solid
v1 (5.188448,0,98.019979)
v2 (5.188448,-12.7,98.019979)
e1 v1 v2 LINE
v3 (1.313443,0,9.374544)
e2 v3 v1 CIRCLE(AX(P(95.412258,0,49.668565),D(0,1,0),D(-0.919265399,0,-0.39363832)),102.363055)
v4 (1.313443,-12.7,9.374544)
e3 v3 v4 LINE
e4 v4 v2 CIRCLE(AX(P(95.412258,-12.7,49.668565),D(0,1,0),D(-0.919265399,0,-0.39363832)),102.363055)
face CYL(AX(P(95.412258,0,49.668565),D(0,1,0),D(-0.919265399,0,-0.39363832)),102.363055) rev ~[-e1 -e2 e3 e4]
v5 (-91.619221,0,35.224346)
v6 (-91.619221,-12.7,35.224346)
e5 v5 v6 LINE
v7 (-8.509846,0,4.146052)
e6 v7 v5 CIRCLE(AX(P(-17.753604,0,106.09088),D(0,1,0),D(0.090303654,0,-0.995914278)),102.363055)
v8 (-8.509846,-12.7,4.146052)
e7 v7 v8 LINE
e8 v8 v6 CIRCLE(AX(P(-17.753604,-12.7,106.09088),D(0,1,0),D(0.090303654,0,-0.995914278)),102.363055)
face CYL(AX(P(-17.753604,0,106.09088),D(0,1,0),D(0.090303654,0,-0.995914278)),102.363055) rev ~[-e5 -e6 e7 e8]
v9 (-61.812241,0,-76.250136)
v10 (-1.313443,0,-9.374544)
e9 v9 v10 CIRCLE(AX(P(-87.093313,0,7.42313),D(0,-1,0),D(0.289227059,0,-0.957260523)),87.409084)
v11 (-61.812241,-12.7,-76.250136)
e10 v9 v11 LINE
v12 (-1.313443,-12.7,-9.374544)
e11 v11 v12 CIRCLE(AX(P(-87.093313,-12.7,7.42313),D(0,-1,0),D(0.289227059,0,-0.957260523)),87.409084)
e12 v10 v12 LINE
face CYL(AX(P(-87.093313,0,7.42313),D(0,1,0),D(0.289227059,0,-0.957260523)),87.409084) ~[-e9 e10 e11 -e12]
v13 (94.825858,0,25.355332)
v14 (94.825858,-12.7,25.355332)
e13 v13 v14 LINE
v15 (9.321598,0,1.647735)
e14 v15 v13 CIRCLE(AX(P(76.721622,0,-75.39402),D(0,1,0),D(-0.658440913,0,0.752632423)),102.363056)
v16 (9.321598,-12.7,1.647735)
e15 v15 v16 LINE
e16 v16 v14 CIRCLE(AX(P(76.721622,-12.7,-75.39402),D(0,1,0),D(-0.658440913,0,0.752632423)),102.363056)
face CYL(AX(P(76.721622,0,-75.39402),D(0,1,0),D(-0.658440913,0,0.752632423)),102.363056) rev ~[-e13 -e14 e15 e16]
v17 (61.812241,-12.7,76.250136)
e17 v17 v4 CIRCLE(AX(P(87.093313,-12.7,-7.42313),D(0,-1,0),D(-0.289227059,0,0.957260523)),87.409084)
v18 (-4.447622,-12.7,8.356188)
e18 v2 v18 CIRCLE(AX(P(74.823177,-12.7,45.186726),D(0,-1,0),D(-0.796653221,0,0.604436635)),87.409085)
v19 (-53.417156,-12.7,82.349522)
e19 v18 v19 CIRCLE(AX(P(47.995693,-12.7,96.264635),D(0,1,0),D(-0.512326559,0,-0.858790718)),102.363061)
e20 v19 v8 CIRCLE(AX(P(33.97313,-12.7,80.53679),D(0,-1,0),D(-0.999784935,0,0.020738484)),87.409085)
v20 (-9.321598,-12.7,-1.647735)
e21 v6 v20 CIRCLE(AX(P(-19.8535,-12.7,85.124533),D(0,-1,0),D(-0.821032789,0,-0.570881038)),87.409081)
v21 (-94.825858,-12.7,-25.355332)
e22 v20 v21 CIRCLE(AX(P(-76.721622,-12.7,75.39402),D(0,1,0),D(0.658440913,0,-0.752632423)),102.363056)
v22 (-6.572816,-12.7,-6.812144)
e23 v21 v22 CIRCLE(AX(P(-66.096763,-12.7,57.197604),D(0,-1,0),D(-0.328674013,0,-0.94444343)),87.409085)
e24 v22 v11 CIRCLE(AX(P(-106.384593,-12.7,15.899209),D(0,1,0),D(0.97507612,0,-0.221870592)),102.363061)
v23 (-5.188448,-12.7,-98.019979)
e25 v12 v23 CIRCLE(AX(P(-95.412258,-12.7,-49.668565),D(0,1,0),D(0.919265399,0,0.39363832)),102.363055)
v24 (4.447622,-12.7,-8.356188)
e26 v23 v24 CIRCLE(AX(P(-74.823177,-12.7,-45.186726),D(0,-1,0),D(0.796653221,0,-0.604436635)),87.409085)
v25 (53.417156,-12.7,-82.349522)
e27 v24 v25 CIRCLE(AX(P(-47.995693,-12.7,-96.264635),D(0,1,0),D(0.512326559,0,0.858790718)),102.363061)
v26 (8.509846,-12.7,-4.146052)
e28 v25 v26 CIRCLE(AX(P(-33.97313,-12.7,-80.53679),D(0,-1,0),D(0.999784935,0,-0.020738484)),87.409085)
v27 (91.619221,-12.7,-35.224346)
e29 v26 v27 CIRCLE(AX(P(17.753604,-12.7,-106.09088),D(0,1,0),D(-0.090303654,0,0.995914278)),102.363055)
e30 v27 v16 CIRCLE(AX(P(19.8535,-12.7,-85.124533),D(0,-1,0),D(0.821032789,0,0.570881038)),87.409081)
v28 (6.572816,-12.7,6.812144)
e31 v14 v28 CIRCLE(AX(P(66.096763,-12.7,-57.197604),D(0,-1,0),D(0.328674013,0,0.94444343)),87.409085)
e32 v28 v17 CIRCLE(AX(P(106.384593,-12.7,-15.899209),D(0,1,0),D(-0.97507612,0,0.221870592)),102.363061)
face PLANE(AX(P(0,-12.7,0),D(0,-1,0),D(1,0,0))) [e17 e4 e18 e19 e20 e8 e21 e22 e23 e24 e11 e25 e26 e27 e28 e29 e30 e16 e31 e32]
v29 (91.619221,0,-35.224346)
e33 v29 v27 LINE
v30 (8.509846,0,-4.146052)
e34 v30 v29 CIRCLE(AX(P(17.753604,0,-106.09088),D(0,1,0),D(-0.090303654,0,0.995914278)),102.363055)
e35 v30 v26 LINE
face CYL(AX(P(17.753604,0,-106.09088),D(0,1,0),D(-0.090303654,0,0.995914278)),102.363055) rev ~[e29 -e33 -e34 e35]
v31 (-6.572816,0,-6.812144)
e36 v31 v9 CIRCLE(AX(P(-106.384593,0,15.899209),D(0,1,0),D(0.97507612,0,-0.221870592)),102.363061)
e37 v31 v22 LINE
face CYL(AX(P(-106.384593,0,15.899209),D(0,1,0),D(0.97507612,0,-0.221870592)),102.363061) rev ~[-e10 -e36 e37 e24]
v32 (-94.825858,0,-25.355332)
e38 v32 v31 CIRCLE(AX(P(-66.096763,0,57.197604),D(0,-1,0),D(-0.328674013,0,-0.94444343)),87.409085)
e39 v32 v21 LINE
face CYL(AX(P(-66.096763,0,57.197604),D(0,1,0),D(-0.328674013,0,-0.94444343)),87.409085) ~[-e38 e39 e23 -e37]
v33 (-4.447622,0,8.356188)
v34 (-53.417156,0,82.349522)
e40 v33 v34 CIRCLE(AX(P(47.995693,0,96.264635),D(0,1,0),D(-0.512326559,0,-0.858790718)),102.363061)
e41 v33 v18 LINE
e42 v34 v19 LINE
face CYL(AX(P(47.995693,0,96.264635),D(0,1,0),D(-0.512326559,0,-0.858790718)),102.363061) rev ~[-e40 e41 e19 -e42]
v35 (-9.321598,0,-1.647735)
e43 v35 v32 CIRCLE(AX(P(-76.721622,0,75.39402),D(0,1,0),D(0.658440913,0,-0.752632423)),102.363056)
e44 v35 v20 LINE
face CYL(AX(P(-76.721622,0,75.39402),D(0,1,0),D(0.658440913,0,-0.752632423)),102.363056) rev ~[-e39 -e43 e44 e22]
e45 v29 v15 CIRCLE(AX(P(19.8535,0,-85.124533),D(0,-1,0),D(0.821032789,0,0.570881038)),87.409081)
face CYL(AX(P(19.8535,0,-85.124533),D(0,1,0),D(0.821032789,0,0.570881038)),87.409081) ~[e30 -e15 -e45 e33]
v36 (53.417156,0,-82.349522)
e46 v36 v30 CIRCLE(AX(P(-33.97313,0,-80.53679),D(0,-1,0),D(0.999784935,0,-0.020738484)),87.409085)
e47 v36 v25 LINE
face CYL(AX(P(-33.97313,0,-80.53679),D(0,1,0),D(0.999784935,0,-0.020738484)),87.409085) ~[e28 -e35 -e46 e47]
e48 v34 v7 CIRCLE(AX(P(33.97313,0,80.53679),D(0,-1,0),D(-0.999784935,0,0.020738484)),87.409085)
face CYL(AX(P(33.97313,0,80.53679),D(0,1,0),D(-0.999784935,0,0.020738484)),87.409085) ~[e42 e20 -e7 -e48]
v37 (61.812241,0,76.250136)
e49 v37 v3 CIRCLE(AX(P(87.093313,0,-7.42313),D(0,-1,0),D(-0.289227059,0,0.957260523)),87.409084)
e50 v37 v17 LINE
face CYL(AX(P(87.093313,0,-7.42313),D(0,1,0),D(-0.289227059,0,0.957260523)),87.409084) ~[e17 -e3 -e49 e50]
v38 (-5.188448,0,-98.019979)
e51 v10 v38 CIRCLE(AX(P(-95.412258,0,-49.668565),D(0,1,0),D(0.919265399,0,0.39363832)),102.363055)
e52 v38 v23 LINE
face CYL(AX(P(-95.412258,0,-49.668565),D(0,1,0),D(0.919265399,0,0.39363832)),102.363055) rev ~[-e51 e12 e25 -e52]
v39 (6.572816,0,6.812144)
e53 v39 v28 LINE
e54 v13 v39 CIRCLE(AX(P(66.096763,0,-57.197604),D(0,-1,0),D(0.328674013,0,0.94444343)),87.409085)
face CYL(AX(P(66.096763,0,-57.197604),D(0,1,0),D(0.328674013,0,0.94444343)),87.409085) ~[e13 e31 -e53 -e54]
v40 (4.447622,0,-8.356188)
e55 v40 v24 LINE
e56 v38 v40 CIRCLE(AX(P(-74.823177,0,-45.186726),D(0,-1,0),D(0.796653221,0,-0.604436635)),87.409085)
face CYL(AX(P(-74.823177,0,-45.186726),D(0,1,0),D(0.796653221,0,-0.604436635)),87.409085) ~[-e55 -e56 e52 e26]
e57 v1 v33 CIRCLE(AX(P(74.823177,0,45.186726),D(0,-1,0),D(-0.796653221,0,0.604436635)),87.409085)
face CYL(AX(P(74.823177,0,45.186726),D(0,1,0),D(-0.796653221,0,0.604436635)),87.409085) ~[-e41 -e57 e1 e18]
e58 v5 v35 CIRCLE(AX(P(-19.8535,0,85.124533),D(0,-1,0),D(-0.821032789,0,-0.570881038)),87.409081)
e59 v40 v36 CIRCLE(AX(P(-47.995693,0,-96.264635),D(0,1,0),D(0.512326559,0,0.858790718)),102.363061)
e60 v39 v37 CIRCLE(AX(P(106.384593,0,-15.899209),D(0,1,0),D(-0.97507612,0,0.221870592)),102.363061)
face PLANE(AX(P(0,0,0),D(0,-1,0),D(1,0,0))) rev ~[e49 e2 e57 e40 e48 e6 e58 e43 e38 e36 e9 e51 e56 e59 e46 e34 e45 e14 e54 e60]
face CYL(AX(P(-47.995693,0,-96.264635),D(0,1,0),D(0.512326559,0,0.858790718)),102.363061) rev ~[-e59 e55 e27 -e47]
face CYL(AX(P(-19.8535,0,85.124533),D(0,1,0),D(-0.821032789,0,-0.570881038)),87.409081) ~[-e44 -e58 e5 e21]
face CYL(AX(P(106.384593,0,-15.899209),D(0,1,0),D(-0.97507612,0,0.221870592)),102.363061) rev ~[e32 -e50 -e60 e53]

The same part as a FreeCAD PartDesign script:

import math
import FreeCAD as App
import Part
import Sketcher
from FreeCAD import Vector
Q = App.Units.Quantity

doc = App.newDocument("Part")
body = doc.addObject("PartDesign::Body", "Body")

# Sketch on XZ plane
sketch1 = body.newObject("Sketcher::SketchObject", "Sketch")
sketch1.AttachmentSupport = (doc.getObject("XZ_Plane"), [""])
sketch1.MapMode = "FlatFace"
sketch1.addGeometry([
    Part.ArcOfCircle(Part.Circle(Vector(106.384593, -15.899209, 0), Vector(0, 0, 1), 102.363061), math.radians(115.81291), math.radians(167.181074)),  # 0
    Part.ArcOfCircle(Part.Circle(Vector(87.093313, -7.42313, 0), Vector(0, 0, 1), 87.409084), math.radians(106.811687), math.radians(168.92037)),  # 1
    Part.ArcOfCircle(Part.Circle(Vector(95.412258, 49.668565, 0), Vector(0, 0, 1), 102.363055), math.radians(151.812909), math.radians(203.181077)),  # 2
    Part.ArcOfCircle(Part.Circle(Vector(74.823177, 45.186726, 0), Vector(0, 0, 1), 87.409085), math.radians(142.811687), math.radians(204.920369)),  # 3
    Part.ArcOfCircle(Part.Circle(Vector(47.995693, 96.264635, 0), Vector(0, 0, 1), 102.363061), math.radians(-172.18709), math.radians(-120.818925)),  # 4
    Part.ArcOfCircle(Part.Circle(Vector(33.97313, 80.53679, 0), Vector(0, 0, 1), 87.409085), math.radians(178.811687), math.radians(240.920369)),  # 5
    Part.ArcOfCircle(Part.Circle(Vector(-17.753604, 106.09088, 0), Vector(0, 0, 1), 102.363055), math.radians(-136.187091), math.radians(-84.818924)),  # 6
    Part.ArcOfCircle(Part.Circle(Vector(-19.8535, 85.124533, 0), Vector(0, 0, 1), 87.409081), math.radians(-145.188314), math.radians(-83.07963)),  # 7
    Part.ArcOfCircle(Part.Circle(Vector(-76.721622, 75.39402, 0), Vector(0, 0, 1), 102.363056), math.radians(-100.187091), math.radians(-48.818924)),  # 8
    Part.ArcOfCircle(Part.Circle(Vector(-66.096763, 57.197604, 0), Vector(0, 0, 1), 87.409085), math.radians(-109.188313), math.radians(-47.079632)),  # 9
    Part.ArcOfCircle(Part.Circle(Vector(-106.384593, 15.899209, 0), Vector(0, 0, 1), 102.363061), math.radians(-64.18709), math.radians(-12.818926)),  # 10
    Part.ArcOfCircle(Part.Circle(Vector(-87.093313, 7.42313, 0), Vector(0, 0, 1), 87.409084), math.radians(-73.188313), math.radians(-11.07963)),  # 11
    Part.ArcOfCircle(Part.Circle(Vector(-95.412258, -49.668565, 0), Vector(0, 0, 1), 102.363055), math.radians(-28.187091), math.radians(23.181077)),  # 12
    Part.ArcOfCircle(Part.Circle(Vector(-74.823177, -45.186726, 0), Vector(0, 0, 1), 87.409085), math.radians(-37.188313), math.radians(24.920369)),  # 13
    Part.ArcOfCircle(Part.Circle(Vector(-47.995693, -96.264635, 0), Vector(0, 0, 1), 102.363061), math.radians(7.81291), math.radians(59.181075)),  # 14
    Part.ArcOfCircle(Part.Circle(Vector(-33.97313, -80.53679, 0), Vector(0, 0, 1), 87.409085), math.radians(-1.188313), math.radians(60.920369)),  # 15
    Part.ArcOfCircle(Part.Circle(Vector(17.753604, -106.09088, 0), Vector(0, 0, 1), 102.363055), math.radians(43.812909), math.radians(95.181076)),  # 16
    Part.ArcOfCircle(Part.Circle(Vector(19.8535, -85.124533, 0), Vector(0, 0, 1), 87.409081), math.radians(34.811686), math.radians(96.92037)),  # 17
    Part.ArcOfCircle(Part.Circle(Vector(76.721622, -75.39402, 0), Vector(0, 0, 1), 102.363056), math.radians(79.812909), math.radians(131.181076)),  # 18
    Part.ArcOfCircle(Part.Circle(Vector(66.096763, -57.197604, 0), Vector(0, 0, 1), 87.409085), math.radians(70.811687), math.radians(132.920368)),  # 19
], False)
sketch1.addConstraint([
    Sketcher.Constraint("Coincident", 0, 1, 1, 1),
    Sketcher.Constraint("Coincident", 1, 2, 2, 2),
    Sketcher.Constraint("Coincident", 2, 1, 3, 1),
    Sketcher.Constraint("Coincident", 3, 2, 4, 2),
    Sketcher.Constraint("Coincident", 4, 1, 5, 1),
    Sketcher.Constraint("Coincident", 5, 2, 6, 2),
    Sketcher.Constraint("Coincident", 6, 1, 7, 1),
    Sketcher.Constraint("Coincident", 7, 2, 8, 2),
    Sketcher.Constraint("Coincident", 8, 1, 9, 1),
    Sketcher.Constraint("Coincident", 9, 2, 10, 2),
    Sketcher.Constraint("Coincident", 10, 1, 11, 1),
    Sketcher.Constraint("Coincident", 11, 2, 12, 2),
    Sketcher.Constraint("Coincident", 12, 1, 13, 1),
    Sketcher.Constraint("Coincident", 13, 2, 14, 2),
    Sketcher.Constraint("Coincident", 14, 1, 15, 1),
    Sketcher.Constraint("Coincident", 15, 2, 16, 2),
    Sketcher.Constraint("Coincident", 16, 1, 17, 1),
    Sketcher.Constraint("Coincident", 17, 2, 18, 2),
    Sketcher.Constraint("Coincident", 18, 1, 19, 1),
    Sketcher.Constraint("Coincident", 19, 2, 0, 2),
    Sketcher.Constraint("Radius", 0, 102.363061),
    Sketcher.Constraint("Radius", 4, 102.363061),
    Sketcher.Constraint("Radius", 7, 87.409081),
    Sketcher.Constraint("Radius", 10, 102.363061),
    Sketcher.Constraint("Radius", 14, 102.363061),
    Sketcher.Constraint("Radius", 17, 87.409081),
    Sketcher.Constraint("Radius", 1, 87.409084),
    Sketcher.Constraint("Radius", 2, 102.363055),
    Sketcher.Constraint("Radius", 3, 87.409085),
    Sketcher.Constraint("Radius", 5, 87.409085),
    Sketcher.Constraint("Radius", 6, 102.363055),
    Sketcher.Constraint("Radius", 8, 102.363056),
    Sketcher.Constraint("Radius", 9, 87.409085),
    Sketcher.Constraint("Radius", 11, 87.409084),
    Sketcher.Constraint("Radius", 12, 102.363055),
    Sketcher.Constraint("Radius", 13, 87.409085),
    Sketcher.Constraint("Radius", 15, 87.409085),
    Sketcher.Constraint("Radius", 16, 102.363055),
    Sketcher.Constraint("Radius", 18, 102.363056),
    Sketcher.Constraint("Radius", 19, 87.409085),
    Sketcher.Constraint("DistanceX", 4, 3, 3, 3, Q("1.0562002 in")),
    Sketcher.Constraint("DistanceX", 13, 3, 14, 3, Q("1.0562002 in")),
    Sketcher.Constraint("DistanceX", 7, 3, -1, 1, 19.8535),
    Sketcher.Constraint("DistanceX", -1, 1, 17, 3, 19.8535),
    Sketcher.Constraint("DistanceX", 7, 2, -1, 1, 9.321598),
    Sketcher.Constraint("DistanceX", -1, 1, 17, 2, 9.321598),
    Sketcher.Constraint("DistanceX", 4, 3, 0, 3, 58.3889),
    Sketcher.Constraint("DistanceY", 0, 3, 5, 3, 96.435999),
    Sketcher.Constraint("DistanceY", 7, 3, 4, 3, 11.140102),
    Sketcher.Constraint("DistanceX", 8, 3, 3, 3, 151.544799),
    Sketcher.Constraint("DistanceX", 10, 3, 14, 3, 58.3889),
    Sketcher.Constraint("DistanceY", 15, 3, 10, 3, 96.435999),
    Sketcher.Constraint("DistanceY", 14, 3, 17, 3, 11.140102),
    Sketcher.Constraint("DistanceY", 0, 1, 4, 3, 20.014499),
    Sketcher.Constraint("DistanceY", 2, 1, 6, 3, 8.070901),
    Sketcher.Constraint("DistanceY", 8, 3, 4, 1, 6.955502),
    Sketcher.Constraint("DistanceX", 6, 1, 8, 3, 14.897599),
    Sketcher.Constraint("DistanceX", 12, 3, 8, 1, 0.5864),
    Sketcher.Constraint("DistanceY", 14, 3, 10, 1, 20.014499),
    Sketcher.Constraint("DistanceY", 11, 2, 9, 2, 2.5624),
    Sketcher.Constraint("DistanceY", 16, 3, 12, 1, 8.070901),
    Sketcher.Constraint("DistanceY", 14, 1, 18, 3, 6.955502),
    Sketcher.Constraint("DistanceX", 18, 3, 16, 1, 14.897599),
    Sketcher.Constraint("DistanceX", 18, 1, 2, 3, 0.5864),
    Sketcher.Constraint("DistanceY", 19, 2, 1, 2, 2.5624),
    Sketcher.Constraint("DistanceY", 0, 3, -1, 1, 15.899209),
    Sketcher.Constraint("DistanceY", 1, 3, -1, 1, 7.42313),
    Sketcher.Constraint("DistanceX", -1, 1, 5, 3, 33.97313),
    Sketcher.Constraint("DistanceY", -1, 1, 6, 3, 106.09088),
    Sketcher.Constraint("DistanceY", -1, 1, 8, 3, 75.39402),
    Sketcher.Constraint("DistanceY", -1, 1, 10, 3, 15.899209),
    Sketcher.Constraint("DistanceY", -1, 1, 11, 3, 7.42313),
    Sketcher.Constraint("DistanceX", 15, 3, -1, 1, 33.97313),
    Sketcher.Constraint("DistanceY", 16, 3, -1, 1, 106.09088),
    Sketcher.Constraint("DistanceY", 18, 3, -1, 1, 75.39402),
    Sketcher.Constraint("DistanceX", 3, 2, -1, 1, 4.447622),
    Sketcher.Constraint("DistanceY", 8, 1, -1, 1, 25.355332),
    Sketcher.Constraint("DistanceX", 10, 1, -1, 1, 61.812241),
    Sketcher.Constraint("DistanceX", -1, 1, 13, 2, 4.447622),
    Sketcher.Constraint("DistanceY", -1, 1, 18, 1, 25.355332),
])
pad1 = body.newObject("PartDesign::Pad", "Pad")
pad1.Profile = sketch1
pad1.Length = Q("0.5 in")

doc.recompute()
